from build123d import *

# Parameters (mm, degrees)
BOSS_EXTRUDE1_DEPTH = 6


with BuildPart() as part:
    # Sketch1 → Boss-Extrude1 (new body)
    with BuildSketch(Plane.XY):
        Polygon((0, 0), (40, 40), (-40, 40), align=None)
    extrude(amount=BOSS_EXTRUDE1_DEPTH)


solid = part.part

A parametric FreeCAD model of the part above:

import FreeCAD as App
import Part
import Sketcher

doc = App.newDocument("Part")
body = doc.addObject("PartDesign::Body", "Body")

sketch1 = body.newObject("Sketcher::SketchObject", "Sketch")
sketch1.AttachmentSupport = (doc.getObject("XY_Plane"), [""])
sketch1.MapMode = "FlatFace"
sketch1.addGeometry(Part.LineSegment(App.Vector(0, 0, 0), App.Vector(40, 40, 0)), False)
sketch1.addGeometry(Part.LineSegment(App.Vector(40, 40, 0), App.Vector(-40, 40, 0)), False)
sketch1.addGeometry(Part.LineSegment(App.Vector(-40, 40, 0), App.Vector(0, 0, 0)), False)
sketch1.addConstraint(Sketcher.Constraint("Coincident", 0, 2, 1, 1))
sketch1.addConstraint(Sketcher.Constraint("Coincident", 1, 2, 2, 1))
sketch1.addConstraint(Sketcher.Constraint("Coincident", 2, 2, 0, 1))
sketch1.addConstraint(Sketcher.Constraint("Horizontal", 1))
sketch1.addConstraint(Sketcher.Constraint("Coincident", 2, 2, -1, 1))
sketch1.addConstraint(Sketcher.Constraint("Perpendicular", 0, 2))
sketch1.addConstraint(Sketcher.Constraint("Equal", 0, 2))
sketch1.addConstraint(Sketcher.Constraint("DistanceX", 1, 2, 1, 1, 80.0))
pad1 = body.newObject("PartDesign::Pad", "Pad")
pad1.Profile = sketch1
pad1.Length = 6

doc.recompute()
